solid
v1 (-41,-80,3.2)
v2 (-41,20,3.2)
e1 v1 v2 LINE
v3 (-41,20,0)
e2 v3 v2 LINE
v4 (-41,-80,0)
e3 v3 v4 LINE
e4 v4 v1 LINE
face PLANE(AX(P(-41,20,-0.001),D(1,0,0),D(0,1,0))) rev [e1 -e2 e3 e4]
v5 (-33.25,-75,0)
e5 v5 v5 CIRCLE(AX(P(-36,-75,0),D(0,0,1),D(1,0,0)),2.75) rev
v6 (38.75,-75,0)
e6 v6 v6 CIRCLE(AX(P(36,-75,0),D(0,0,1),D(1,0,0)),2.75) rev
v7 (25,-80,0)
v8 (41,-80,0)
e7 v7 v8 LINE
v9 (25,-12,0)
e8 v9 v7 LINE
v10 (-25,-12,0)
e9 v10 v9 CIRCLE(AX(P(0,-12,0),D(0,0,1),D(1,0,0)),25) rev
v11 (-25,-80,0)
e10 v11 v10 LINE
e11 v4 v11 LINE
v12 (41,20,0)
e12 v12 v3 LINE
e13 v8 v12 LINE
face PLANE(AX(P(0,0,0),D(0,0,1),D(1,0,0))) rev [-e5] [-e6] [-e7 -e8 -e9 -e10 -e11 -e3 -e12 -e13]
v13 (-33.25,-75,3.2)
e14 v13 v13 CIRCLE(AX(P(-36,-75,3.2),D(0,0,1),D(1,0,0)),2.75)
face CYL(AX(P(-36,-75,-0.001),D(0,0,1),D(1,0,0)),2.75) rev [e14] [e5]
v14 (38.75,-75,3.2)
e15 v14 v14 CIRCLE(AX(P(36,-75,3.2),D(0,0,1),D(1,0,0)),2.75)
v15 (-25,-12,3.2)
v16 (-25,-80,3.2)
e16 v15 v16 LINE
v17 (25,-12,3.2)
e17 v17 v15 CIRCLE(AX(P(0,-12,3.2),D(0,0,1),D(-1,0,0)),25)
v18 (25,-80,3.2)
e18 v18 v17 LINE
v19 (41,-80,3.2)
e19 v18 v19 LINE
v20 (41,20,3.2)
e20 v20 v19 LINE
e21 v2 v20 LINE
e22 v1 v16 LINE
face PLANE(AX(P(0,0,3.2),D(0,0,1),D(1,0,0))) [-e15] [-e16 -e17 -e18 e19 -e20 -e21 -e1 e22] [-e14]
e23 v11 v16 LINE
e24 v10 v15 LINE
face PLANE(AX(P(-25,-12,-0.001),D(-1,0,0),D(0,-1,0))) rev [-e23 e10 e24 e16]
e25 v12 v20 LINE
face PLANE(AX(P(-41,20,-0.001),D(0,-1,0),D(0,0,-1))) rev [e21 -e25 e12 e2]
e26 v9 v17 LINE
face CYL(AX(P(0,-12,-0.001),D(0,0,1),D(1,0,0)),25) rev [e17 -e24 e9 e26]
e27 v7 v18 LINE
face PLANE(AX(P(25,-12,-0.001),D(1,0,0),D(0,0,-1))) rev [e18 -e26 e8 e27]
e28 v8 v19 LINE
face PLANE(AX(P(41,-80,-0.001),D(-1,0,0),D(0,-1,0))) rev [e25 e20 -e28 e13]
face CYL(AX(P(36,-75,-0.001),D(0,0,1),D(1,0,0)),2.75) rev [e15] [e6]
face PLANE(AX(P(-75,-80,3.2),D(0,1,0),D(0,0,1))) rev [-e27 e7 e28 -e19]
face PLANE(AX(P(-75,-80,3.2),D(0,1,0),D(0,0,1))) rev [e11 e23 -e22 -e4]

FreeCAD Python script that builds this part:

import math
import FreeCAD as App
import Part
import Sketcher


def add_polygon(sketch, points):
    """Adds a closed chain of lines whose ends are joined by coincident constraints."""
    first, n = sketch.GeometryCount, len(points)
    for a, b in zip(points, points[1:] + points[:1]):
        sketch.addGeometry(Part.LineSegment(App.Vector(*a, 0), App.Vector(*b, 0)), False)
    for i in range(n):
        sketch.addConstraint(Sketcher.Constraint("Coincident", first + i, 2, first + (i + 1) % n, 1))

doc = App.newDocument("Part")
params = doc.addObject("Spreadsheet::Sheet", "Params")
for row, (alias, value) in enumerate([
    ("sketch1_width", "150 mm"),
    ("sketch1_height", "160 mm"),
    ("pad1_length", "3.2 mm"),
    ("sketch2_radius", "25 mm"),
    ("sketch2_height", "68 mm"),
    ("sketch3_diameter", "5.5 mm"),
    ("sketch4_diameter", "5.5 mm"),
    ("sketch5_width", "82 mm"),
    ("sketch5_width2", "34 mm"),
    ("sketch5_height", "100 mm"),
    ("sketch5_height2", "160 mm"),
], start=1):
    params.set(f"A{row}", alias)
    params.set(f"B{row}", "=" + value)
    params.setAlias(f"B{row}", alias)

body = doc.addObject("PartDesign::Body", "Body")

sketch1 = body.newObject("Sketcher::SketchObject", "Sketch")
sketch1.AttachmentSupport = (doc.getObject("XY_Plane"), [""])
sketch1.MapMode = "FlatFace"
add_polygon(sketch1, [(-75, 80), (-75, -80), (75, -80), (75, 80)])
sketch1.addConstraint([
    Sketcher.Constraint("Vertical", 0),
    Sketcher.Constraint("Horizontal", 1),
    Sketcher.Constraint("Vertical", 2),
    Sketcher.Constraint("Horizontal", 3),
    Sketcher.Constraint("Symmetric", 0, 2, 2, 2, -1, 1),
    Sketcher.Constraint("DistanceX", 1, 1, 1, 2, 150.0),
    Sketcher.Constraint("DistanceY", 0, 2, 0, 1, 160.0),
])
sketch1.setExpression("Constraints[9]", "Params.sketch1_width")
sketch1.setExpression("Constraints[10]", "Params.sketch1_height")
pad1 = body.newObject("PartDesign::Pad", "Pad")
pad1.Profile = sketch1
pad1.setExpression("Length", "Params.pad1_length")

sketch2 = body.newObject("Sketcher::SketchObject", "Sketch001")
sketch2.AttachmentSupport = (doc.getObject("XY_Plane"), [""])
sketch2.MapMode = "FlatFace"
sketch2.AttachmentOffset = App.Placement(App.Vector(0, 0, 3.2), App.Rotation())
sketch2.addGeometry([
    Part.LineSegment(App.Vector(-25, -12, 0), App.Vector(-25, -80, 0)),
    Part.LineSegment(App.Vector(-25, -80, 0), App.Vector(25, -80, 0)),
    Part.LineSegment(App.Vector(25, -80, 0), App.Vector(25, -12, 0)),
    Part.ArcOfCircle(Part.Circle(App.Vector(0, -12, 0), App.Vector(0, 0, 1), 25), math.radians(0), math.radians(180)),
], False)
sketch2.addConstraint([
    Sketcher.Constraint("Coincident", 0, 2, 1, 1),
    Sketcher.Constraint("Coincident", 1, 2, 2, 1),
    Sketcher.Constraint("Tangent", 2, 2, 3, 1),
    Sketcher.Constraint("Tangent", 3, 2, 0, 1),
    Sketcher.Constraint("Vertical", 0),
    Sketcher.Constraint("Horizontal", 1),
    Sketcher.Constraint("Vertical", 2),
    Sketcher.Constraint("PointOnObject", 3, 3, -2),
    Sketcher.Constraint("Radius", 3, 25.0),
    Sketcher.Constraint("DistanceY", 0, 2, 0, 1, 68.0),
    Sketcher.Constraint("DistanceY", 3, 3, -1, 1, 12.0),
])
sketch2.setExpression("Constraints[8]", "Params.sketch2_radius")
sketch2.setExpression("Constraints[9]", "Params.sketch2_height")
pocket1 = body.newObject("PartDesign::Pocket", "Pocket")
pocket1.Profile = sketch2
pocket1.Type = "UpToFirst"

sketch3 = body.newObject("Sketcher::SketchObject", "Sketch002")
sketch3.AttachmentSupport = (doc.getObject("XY_Plane"), [""])
sketch3.MapMode = "FlatFace"
sketch3.AttachmentOffset = App.Placement(App.Vector(0, 0, 3.2), App.Rotation())
sketch3.addGeometry(Part.Circle(App.Vector(36, -75, 0), App.Vector(0, 0, 1), 2.75), False)
sketch3.addConstraint([
    Sketcher.Constraint("Diameter", 0, 5.5),
    Sketcher.Constraint("DistanceX", -1, 1, 0, 3, 36.0),
    Sketcher.Constraint("DistanceY", 0, 3, -1, 1, 75.0),
])
sketch3.setExpression("Constraints[0]", "Params.sketch3_diameter")
pocket2 = body.newObject("PartDesign::Pocket", "Pocket001")
pocket2.Profile = sketch3
pocket2.Type = "UpToFirst"

sketch4 = body.newObject("Sketcher::SketchObject", "Sketch003")
sketch4.AttachmentSupport = (doc.getObject("XY_Plane"), [""])
sketch4.MapMode = "FlatFace"
sketch4.AttachmentOffset = App.Placement(App.Vector(0, 0, 3.2), App.Rotation())
sketch4.addGeometry(Part.Circle(App.Vector(-36, -75, 0), App.Vector(0, 0, 1), 2.75), False)
sketch4.addConstraint([
    Sketcher.Constraint("Diameter", 0, 5.5),
    Sketcher.Constraint("DistanceX", 0, 3, -1, 1, 36.0),
    Sketcher.Constraint("DistanceY", 0, 3, -1, 1, 75.0),
])
sketch4.setExpression("Constraints[0]", "Params.sketch4_diameter")
pocket3 = body.newObject("PartDesign::Pocket", "Pocket002")
pocket3.Profile = sketch4
pocket3.Type = "UpToFirst"

sketch5 = body.newObject("Sketcher::SketchObject", "Sketch004")
sketch5.AttachmentSupport = (doc.getObject("XY_Plane"), [""])
sketch5.MapMode = "FlatFace"
sketch5.AttachmentOffset = App.Placement(App.Vector(0, 0, 3.2), App.Rotation())
add_polygon(sketch5, [(-41, -80), (-41, 20), (41, 20), (41, -80), (75, -80), (75, 80), (-75, 80), (-75, -80)])
sketch5.addConstraint([
    Sketcher.Constraint("Vertical", 0),
    Sketcher.Constraint("Horizontal", 1),
    Sketcher.Constraint("Vertical", 2),
    Sketcher.Constraint("Horizontal", 3),
    Sketcher.Constraint("Vertical", 4),
    Sketcher.Constraint("Horizontal", 5),
    Sketcher.Constraint("Vertical", 6),
    Sketcher.Constraint("Horizontal", 7),
    Sketcher.Constraint("Symmetric", 3, 2, 5, 2, -1, 1),
    Sketcher.Constraint("Symmetric", 2, 2, 7, 2, -2),
    Sketcher.Constraint("DistanceX", 1, 1, 1, 2, 82.0),
    Sketcher.Constraint("DistanceX", 3, 1, 3, 2, 34.0),
    Sketcher.Constraint("DistanceY", 0, 1, 0, 2, 100.0),
    Sketcher.Constraint("DistanceY", 4, 1, 4, 2, 160.0),
])
sketch5.setExpression("Constraints[18]", "Params.sketch5_width")
sketch5.setExpression("Constraints[19]", "Params.sketch5_width2")
sketch5.setExpression("Constraints[20]", "Params.sketch5_height")
sketch5.setExpression("Constraints[21]", "Params.sketch5_height2")
pocket4 = body.newObject("PartDesign::Pocket", "Pocket003")
pocket4.Profile = sketch5
pocket4.Type = "UpToFirst"

doc.recompute()
